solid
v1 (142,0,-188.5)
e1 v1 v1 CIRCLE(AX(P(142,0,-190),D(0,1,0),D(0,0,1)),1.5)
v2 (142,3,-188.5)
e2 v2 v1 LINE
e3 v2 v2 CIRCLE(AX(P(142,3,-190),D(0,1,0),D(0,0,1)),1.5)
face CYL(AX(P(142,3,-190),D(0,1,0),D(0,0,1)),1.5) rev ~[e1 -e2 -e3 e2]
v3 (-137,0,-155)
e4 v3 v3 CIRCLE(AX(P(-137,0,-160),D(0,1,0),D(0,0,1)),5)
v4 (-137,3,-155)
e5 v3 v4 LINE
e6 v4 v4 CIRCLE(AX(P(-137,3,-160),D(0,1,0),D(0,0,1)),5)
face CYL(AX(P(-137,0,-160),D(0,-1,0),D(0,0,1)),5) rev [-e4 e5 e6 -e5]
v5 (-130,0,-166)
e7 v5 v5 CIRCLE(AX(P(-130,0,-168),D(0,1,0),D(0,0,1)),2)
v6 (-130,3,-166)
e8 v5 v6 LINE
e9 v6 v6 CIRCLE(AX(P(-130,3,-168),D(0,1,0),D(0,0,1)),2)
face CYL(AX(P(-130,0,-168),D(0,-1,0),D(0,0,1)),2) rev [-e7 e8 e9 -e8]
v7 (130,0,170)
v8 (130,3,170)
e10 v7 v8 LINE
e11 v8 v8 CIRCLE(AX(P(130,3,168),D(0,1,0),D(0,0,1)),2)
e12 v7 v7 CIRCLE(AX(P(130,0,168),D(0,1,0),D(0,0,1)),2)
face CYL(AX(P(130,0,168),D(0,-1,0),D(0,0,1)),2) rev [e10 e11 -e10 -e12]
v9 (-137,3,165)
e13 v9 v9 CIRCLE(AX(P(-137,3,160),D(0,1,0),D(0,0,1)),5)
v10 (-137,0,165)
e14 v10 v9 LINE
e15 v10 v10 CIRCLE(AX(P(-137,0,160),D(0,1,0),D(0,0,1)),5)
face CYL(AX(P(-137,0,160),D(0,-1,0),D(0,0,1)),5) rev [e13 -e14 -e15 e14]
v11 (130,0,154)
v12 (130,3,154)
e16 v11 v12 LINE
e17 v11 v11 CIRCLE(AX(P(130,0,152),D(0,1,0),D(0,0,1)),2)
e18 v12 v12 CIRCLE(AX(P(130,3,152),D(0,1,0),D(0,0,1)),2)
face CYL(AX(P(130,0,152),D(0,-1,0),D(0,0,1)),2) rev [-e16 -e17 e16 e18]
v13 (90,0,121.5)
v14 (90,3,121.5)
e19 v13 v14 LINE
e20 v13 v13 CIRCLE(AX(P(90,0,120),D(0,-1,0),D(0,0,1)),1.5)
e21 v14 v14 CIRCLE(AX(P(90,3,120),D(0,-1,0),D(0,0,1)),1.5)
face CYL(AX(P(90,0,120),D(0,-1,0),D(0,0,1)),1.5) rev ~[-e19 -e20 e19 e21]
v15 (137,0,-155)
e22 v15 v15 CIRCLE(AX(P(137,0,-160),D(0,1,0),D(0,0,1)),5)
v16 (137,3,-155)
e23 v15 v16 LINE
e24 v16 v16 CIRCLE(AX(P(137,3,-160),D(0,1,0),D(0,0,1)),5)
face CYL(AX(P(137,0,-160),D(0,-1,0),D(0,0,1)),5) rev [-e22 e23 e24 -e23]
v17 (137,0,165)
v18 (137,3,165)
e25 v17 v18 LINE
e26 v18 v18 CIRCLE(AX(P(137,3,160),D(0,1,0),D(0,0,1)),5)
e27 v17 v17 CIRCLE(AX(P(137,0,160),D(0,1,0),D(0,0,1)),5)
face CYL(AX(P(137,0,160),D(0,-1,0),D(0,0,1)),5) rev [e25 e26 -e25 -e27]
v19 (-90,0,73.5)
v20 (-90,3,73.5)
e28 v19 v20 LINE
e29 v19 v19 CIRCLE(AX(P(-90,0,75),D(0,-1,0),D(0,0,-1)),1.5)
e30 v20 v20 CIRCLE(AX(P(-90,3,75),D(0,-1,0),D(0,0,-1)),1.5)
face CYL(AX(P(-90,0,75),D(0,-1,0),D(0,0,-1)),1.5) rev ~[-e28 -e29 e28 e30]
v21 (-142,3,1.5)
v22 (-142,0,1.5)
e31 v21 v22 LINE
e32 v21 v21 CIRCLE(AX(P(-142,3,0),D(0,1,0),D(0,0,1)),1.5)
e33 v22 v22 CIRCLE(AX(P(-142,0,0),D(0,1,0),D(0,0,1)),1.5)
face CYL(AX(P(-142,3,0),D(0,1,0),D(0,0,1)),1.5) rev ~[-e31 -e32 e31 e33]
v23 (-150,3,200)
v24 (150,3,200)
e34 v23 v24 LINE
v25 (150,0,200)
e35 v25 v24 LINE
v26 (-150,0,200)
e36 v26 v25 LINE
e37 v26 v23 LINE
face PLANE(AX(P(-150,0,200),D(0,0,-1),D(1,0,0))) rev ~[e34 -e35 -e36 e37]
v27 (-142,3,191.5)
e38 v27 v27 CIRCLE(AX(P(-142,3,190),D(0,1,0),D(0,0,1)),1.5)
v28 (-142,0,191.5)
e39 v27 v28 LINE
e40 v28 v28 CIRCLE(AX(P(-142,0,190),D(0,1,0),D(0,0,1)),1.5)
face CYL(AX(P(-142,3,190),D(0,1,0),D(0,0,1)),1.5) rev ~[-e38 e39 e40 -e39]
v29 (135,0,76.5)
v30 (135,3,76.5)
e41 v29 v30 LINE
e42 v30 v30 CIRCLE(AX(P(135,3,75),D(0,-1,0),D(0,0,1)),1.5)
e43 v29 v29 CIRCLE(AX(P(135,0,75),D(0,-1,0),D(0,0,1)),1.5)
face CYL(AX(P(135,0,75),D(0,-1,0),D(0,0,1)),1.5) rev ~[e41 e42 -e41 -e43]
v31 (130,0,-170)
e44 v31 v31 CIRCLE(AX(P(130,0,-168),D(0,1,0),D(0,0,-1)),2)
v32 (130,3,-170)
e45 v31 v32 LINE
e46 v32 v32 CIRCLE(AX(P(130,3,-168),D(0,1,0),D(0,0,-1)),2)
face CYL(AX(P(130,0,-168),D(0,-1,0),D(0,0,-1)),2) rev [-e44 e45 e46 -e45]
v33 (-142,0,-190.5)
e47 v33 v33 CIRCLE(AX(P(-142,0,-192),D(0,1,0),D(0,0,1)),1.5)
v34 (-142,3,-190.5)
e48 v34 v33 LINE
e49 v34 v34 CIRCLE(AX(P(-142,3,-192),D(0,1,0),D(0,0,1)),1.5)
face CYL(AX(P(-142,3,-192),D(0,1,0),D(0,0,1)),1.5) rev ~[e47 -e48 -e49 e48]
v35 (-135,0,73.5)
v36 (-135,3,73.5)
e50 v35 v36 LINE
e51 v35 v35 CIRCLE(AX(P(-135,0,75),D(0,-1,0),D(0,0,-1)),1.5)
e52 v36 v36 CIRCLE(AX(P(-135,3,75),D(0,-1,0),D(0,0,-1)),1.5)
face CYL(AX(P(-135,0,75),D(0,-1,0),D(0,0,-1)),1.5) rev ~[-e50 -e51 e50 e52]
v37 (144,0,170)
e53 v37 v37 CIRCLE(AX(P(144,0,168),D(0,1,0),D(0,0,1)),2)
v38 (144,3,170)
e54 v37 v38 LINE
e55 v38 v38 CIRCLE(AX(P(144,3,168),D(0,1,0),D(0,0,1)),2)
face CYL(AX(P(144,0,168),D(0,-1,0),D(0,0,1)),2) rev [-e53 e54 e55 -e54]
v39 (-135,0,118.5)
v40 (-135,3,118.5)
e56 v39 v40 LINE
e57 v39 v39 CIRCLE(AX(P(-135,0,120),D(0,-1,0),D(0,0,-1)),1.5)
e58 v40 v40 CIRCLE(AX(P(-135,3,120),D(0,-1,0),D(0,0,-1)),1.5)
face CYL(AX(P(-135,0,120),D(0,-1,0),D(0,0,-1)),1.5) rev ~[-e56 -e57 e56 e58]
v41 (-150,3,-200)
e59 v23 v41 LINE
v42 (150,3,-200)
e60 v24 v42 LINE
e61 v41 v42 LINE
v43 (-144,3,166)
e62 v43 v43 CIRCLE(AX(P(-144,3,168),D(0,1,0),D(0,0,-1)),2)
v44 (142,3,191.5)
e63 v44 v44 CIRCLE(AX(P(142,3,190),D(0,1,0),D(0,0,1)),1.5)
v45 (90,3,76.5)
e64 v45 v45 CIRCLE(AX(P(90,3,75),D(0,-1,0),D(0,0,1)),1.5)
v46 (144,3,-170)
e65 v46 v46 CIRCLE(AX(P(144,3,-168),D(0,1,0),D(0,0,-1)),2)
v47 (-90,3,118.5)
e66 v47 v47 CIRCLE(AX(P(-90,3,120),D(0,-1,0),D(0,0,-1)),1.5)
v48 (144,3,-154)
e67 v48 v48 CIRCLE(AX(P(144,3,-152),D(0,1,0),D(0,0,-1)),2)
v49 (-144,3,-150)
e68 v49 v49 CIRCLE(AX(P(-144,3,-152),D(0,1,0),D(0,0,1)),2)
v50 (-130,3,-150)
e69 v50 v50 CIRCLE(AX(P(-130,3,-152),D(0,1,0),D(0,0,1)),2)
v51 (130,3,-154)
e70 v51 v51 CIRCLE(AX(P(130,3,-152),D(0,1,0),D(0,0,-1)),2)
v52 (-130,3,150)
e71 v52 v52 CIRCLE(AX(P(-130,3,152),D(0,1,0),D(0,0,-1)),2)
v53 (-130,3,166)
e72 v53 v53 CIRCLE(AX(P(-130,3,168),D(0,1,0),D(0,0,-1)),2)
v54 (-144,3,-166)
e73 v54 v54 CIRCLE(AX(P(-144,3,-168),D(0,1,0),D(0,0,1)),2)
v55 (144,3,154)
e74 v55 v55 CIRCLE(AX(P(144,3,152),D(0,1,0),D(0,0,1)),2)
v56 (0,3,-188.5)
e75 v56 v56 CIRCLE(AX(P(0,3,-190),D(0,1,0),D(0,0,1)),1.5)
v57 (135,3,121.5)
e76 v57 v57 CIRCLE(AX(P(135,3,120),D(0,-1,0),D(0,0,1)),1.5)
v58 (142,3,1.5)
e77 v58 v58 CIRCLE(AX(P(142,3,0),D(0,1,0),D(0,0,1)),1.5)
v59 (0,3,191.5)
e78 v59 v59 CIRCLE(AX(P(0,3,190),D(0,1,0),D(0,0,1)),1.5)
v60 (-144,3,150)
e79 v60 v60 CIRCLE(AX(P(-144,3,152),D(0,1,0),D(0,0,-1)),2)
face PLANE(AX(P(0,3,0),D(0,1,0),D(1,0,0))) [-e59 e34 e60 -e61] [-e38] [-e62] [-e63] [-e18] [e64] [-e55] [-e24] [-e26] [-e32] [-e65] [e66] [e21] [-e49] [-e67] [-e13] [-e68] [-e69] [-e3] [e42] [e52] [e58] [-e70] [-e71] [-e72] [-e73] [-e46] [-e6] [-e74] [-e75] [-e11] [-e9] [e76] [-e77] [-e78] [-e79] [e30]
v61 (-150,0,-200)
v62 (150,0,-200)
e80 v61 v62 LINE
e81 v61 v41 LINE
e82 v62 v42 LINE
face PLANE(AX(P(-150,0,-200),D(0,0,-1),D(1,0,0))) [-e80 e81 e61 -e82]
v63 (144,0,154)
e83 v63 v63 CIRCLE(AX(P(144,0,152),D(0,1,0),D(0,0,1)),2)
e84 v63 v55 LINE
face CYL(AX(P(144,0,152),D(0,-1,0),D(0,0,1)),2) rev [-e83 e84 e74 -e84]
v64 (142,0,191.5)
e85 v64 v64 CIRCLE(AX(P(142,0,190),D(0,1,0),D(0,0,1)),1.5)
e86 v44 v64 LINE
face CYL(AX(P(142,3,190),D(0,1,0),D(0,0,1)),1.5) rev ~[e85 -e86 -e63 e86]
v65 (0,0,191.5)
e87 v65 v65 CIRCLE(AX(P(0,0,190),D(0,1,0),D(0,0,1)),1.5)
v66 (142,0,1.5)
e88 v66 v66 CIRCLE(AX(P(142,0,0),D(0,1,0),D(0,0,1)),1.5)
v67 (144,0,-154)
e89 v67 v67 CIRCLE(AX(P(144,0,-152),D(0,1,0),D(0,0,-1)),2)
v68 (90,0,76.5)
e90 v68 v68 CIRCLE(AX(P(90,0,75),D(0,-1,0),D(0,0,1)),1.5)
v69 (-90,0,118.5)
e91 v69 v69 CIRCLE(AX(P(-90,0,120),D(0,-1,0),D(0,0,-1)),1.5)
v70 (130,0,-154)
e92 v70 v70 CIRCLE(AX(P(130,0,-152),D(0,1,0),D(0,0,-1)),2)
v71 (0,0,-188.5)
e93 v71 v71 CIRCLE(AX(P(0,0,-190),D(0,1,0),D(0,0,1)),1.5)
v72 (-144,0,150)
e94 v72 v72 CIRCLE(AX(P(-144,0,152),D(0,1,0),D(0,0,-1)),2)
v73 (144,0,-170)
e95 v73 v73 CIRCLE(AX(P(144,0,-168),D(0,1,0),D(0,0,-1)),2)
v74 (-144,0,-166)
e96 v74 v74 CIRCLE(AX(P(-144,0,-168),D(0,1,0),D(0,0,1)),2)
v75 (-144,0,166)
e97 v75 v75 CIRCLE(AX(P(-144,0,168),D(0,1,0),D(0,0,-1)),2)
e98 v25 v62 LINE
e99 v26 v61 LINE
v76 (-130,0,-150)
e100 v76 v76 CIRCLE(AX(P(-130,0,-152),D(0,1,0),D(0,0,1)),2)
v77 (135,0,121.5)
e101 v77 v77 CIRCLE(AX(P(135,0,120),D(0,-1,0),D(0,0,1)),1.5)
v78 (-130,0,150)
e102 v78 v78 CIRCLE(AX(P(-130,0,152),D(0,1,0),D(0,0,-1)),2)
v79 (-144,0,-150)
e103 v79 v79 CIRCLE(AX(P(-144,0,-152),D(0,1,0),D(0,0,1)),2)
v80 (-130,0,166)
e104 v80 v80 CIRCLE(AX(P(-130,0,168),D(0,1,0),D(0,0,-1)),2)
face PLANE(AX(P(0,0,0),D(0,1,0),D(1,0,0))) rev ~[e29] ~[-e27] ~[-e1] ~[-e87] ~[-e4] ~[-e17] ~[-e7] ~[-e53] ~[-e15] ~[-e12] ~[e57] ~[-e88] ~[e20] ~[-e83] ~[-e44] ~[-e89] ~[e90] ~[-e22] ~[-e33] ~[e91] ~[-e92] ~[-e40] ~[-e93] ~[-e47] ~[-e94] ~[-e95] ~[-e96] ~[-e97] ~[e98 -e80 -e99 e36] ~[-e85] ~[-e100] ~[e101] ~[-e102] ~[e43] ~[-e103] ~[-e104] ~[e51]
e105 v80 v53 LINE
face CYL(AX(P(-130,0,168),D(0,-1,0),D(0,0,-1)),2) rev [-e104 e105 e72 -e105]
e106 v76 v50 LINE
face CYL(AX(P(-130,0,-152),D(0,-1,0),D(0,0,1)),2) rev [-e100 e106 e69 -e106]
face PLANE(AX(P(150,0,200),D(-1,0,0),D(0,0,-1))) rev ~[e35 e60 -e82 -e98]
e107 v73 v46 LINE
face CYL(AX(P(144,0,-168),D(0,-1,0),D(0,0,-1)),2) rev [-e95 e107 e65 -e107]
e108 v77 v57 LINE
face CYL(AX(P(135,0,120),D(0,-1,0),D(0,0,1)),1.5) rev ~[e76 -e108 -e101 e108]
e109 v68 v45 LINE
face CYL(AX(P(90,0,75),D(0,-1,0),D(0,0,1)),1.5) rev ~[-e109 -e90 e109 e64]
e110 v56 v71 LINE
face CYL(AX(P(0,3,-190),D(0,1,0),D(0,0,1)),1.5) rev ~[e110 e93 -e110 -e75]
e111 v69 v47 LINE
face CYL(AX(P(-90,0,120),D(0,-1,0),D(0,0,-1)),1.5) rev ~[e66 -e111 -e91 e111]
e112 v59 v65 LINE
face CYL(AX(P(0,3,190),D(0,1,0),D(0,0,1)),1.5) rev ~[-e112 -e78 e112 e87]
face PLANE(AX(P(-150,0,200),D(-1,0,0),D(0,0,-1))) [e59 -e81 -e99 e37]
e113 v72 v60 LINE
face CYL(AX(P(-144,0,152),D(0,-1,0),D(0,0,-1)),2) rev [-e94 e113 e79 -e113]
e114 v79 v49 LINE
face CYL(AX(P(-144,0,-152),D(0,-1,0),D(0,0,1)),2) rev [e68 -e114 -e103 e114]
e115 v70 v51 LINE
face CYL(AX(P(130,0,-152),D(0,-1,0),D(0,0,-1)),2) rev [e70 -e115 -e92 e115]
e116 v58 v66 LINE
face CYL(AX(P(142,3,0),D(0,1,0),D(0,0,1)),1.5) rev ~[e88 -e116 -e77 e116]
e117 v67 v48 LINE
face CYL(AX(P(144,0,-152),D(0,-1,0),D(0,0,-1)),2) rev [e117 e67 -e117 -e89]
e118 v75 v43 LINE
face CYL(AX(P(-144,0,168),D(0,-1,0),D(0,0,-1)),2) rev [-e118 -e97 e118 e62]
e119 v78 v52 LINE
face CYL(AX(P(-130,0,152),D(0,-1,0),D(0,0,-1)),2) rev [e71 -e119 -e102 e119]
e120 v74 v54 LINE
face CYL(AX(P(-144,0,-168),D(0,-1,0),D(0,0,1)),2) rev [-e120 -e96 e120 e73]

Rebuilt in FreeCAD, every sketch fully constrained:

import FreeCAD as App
import Part
import Sketcher
from FreeCAD import Vector
Q = App.Units.Quantity

doc = App.newDocument("Part")
body = doc.addObject("PartDesign::Body", "Body")

sketch1 = body.newObject("Sketcher::SketchObject", "Sketch")
sketch1.AttachmentSupport = (doc.getObject("XZ_Plane"), [""])
sketch1.MapMode = "FlatFace"
sketch1.addGeometry([
    Part.LineSegment(Vector(-150, -200, 0), Vector(-150, 200, 0)),
    Part.LineSegment(Vector(-150, 200, 0), Vector(150, 200, 0)),
    Part.LineSegment(Vector(150, 200, 0), Vector(150, -200, 0)),
    Part.LineSegment(Vector(150, -200, 0), Vector(-150, -200, 0)),
    Part.Circle(Vector(-144, 168, 0), Vector(0, 0, 1), 2),
    Part.Circle(Vector(-137, 160, 0), Vector(0, 0, 1), 5),
    Part.Circle(Vector(-130, 168, 0), Vector(0, 0, 1), 2),
    Part.Circle(Vector(-144, 152, 0), Vector(0, 0, 1), 2),
    Part.Circle(Vector(-130, 152, 0), Vector(0, 0, 1), 2),
    Part.Circle(Vector(130, 168, 0), Vector(0, 0, 1), 2),
    Part.Circle(Vector(144, 168, 0), Vector(0, 0, 1), 2),
    Part.Circle(Vector(137, 160, 0), Vector(0, 0, 1), 5),
    Part.Circle(Vector(130, 152, 0), Vector(0, 0, 1), 2),
    Part.Circle(Vector(144, 152, 0), Vector(0, 0, 1), 2),
    Part.Circle(Vector(-144, -152, 0), Vector(0, 0, 1), 2),
    Part.Circle(Vector(-130, -152, 0), Vector(0, 0, 1), 2),
    Part.Circle(Vector(-137, -160, 0), Vector(0, 0, 1), 5),
    Part.Circle(Vector(-144, -168, 0), Vector(0, 0, 1), 2),
    Part.Circle(Vector(-130, -168, 0), Vector(0, 0, 1), 2),
    Part.Circle(Vector(130, -152, 0), Vector(0, 0, 1), 2),
    Part.Circle(Vector(144, -152, 0), Vector(0, 0, 1), 2),
    Part.Circle(Vector(130, -168, 0), Vector(0, 0, 1), 2),
    Part.Circle(Vector(137, -160, 0), Vector(0, 0, 1), 5),
    Part.Circle(Vector(144, -168, 0), Vector(0, 0, 1), 2),
], False)
sketch1.addConstraint([
    Sketcher.Constraint("Coincident", 0, 2, 1, 1),
    Sketcher.Constraint("Coincident", 1, 2, 2, 1),
    Sketcher.Constraint("Coincident", 2, 2, 3, 1),
    Sketcher.Constraint("Coincident", 3, 2, 0, 1),
    Sketcher.Constraint("Vertical", 0),
    Sketcher.Constraint("Horizontal", 1),
    Sketcher.Constraint("Vertical", 2),
    Sketcher.Constraint("Horizontal", 3),
    Sketcher.Constraint("Equal", 4, 6),
    Sketcher.Constraint("Equal", 6, 7),
    Sketcher.Constraint("Equal", 7, 8),
    Sketcher.Constraint("Equal", 8, 9),
    Sketcher.Constraint("Equal", 9, 10),
    Sketcher.Constraint("Equal", 5, 11),
    Sketcher.Constraint("Equal", 10, 12),
    Sketcher.Constraint("Equal", 12, 13),
    Sketcher.Constraint("Equal", 13, 14),
    Sketcher.Constraint("Equal", 14, 15),
    Sketcher.Constraint("Equal", 11, 16),
    Sketcher.Constraint("Equal", 15, 17),
    Sketcher.Constraint("Equal", 17, 18),
    Sketcher.Constraint("Equal", 18, 19),
    Sketcher.Constraint("Equal", 19, 20),
    Sketcher.Constraint("Equal", 20, 21),
    Sketcher.Constraint("Equal", 16, 22),
    Sketcher.Constraint("Equal", 21, 23),
    Sketcher.Constraint("Symmetric", 13, 3, 14, 3, -1, 1),
    Sketcher.Constraint("Symmetric", 12, 3, 15, 3, -1, 1),
    Sketcher.Constraint("Symmetric", 11, 3, 16, 3, -1, 1),
    Sketcher.Constraint("Symmetric", 10, 3, 17, 3, -1, 1),
    Sketcher.Constraint("Symmetric", 9, 3, 18, 3, -1, 1),
    Sketcher.Constraint("Symmetric", 8, 3, 19, 3, -1, 1),
    Sketcher.Constraint("Symmetric", 7, 3, 20, 3, -1, 1),
    Sketcher.Constraint("Symmetric", 6, 3, 21, 3, -1, 1),
    Sketcher.Constraint("Symmetric", 5, 3, 22, 3, -1, 1),
    Sketcher.Constraint("Symmetric", 4, 3, 23, 3, -1, 1),
    Sketcher.Constraint("Symmetric", 0, 2, 2, 2, -1, 1),
    Sketcher.Constraint("Symmetric", 6, 3, 9, 3, -2),
    Sketcher.Constraint("Symmetric", 4, 3, 10, 3, -2),
    Sketcher.Constraint("Symmetric", 5, 3, 11, 3, -2),
    Sketcher.Constraint("Symmetric", 8, 3, 12, 3, -2),
    Sketcher.Constraint("Symmetric", 7, 3, 13, 3, -2),
    Sketcher.Constraint("Horizontal", 4, 3, 6, 3),
    Sketcher.Constraint("Horizontal", 7, 3, 8, 3),
    Sketcher.Constraint("Vertical", 4, 3, 7, 3),
    Sketcher.Constraint("Vertical", 6, 3, 8, 3),
    Sketcher.Constraint("Diameter", 4, Q("4 mm")),
    Sketcher.Constraint("Diameter", 5, Q("10 mm")),
    Sketcher.Constraint("DistanceX", 1, 1, 1, 2, Q("300 mm")),
    Sketcher.Constraint("DistanceY", 0, 1, 0, 2, Q("400 mm")),
    Sketcher.Constraint("DistanceX", 4, 3, -1, 1, Q("144 mm")),
    Sketcher.Constraint("DistanceY", -1, 1, 4, 3, Q("168 mm")),
    Sketcher.Constraint("DistanceX", 5, 3, -1, 1, Q("137 mm")),
    Sketcher.Constraint("DistanceY", -1, 1, 5, 3, Q("160 mm")),
    Sketcher.Constraint("DistanceX", 6, 3, -1, 1, Q("130 mm")),
    Sketcher.Constraint("DistanceY", -1, 1, 7, 3, Q("152 mm")),
])
pad1 = body.newObject("PartDesign::Pad", "Pad")
pad1.Profile = sketch1
pad1.Length = 3
pad1.Reversed = True

sketch2 = body.newObject("Sketcher::SketchObject", "Sketch001")
sketch2.AttachmentSupport = (doc.getObject("XZ_Plane"), [""])
sketch2.MapMode = "FlatFace"
sketch2.AttachmentOffset = App.Placement(Vector(0, 0, -3), App.Rotation())
sketch2.addGeometry([
    Part.Circle(Vector(-142, 190, 0), Vector(0, 0, 1), 1.5),
    Part.Circle(Vector(142, 190, 0), Vector(0, 0, 1), 1.5),
    Part.Circle(Vector(142, 0, 0), Vector(0, 0, 1), 1.5),
    Part.Circle(Vector(-142, 0, 0), Vector(0, 0, 1), 1.5),
    Part.Circle(Vector(-142, -192, 0), Vector(0, 0, 1), 1.5),
    Part.Circle(Vector(142, -190, 0), Vector(0, 0, 1), 1.5),
    Part.Circle(Vector(0, -190, 0), Vector(0, 0, 1), 1.5),
    Part.Circle(Vector(0, 190, 0), Vector(0, 0, 1), 1.5),
], False)
sketch2.addConstraint([
    Sketcher.Constraint("Equal", 0, 1),
    Sketcher.Constraint("Equal", 1, 2),
    Sketcher.Constraint("Equal", 2, 3),
    Sketcher.Constraint("Equal", 3, 4),
    Sketcher.Constraint("Equal", 4, 5),
    Sketcher.Constraint("Equal", 5, 6),
    Sketcher.Constraint("Equal", 6, 7),
    Sketcher.Constraint("Symmetric", 2, 3, 3, 3, -1, 1),
    Sketcher.Constraint("Symmetric", 0, 3, 5, 3, -1, 1),
    Sketcher.Constraint("Symmetric", 6, 3, 7, 3, -1, 1),
    Sketcher.Constraint("Symmetric", 0, 3, 1, 3, -2),
    Sketcher.Constraint("PointOnObject", 2, 3, -1),
    Sketcher.Constraint("PointOnObject", 6, 3, -2),
    Sketcher.Constraint("Horizontal", 5, 3, 6, 3),
    Sketcher.Constraint("Vertical", 1, 3, 2, 3),
    Sketcher.Constraint("Vertical", 3, 3, 4, 3),
    Sketcher.Constraint("Diameter", 0, Q("3 mm")),
    Sketcher.Constraint("DistanceX", 0, 3, -1, 1, Q("142 mm")),
    Sketcher.Constraint("DistanceY", -1, 1, 0, 3, Q("190 mm")),
    Sketcher.Constraint("DistanceY", 4, 3, -1, 1, Q("192 mm")),
])
pocket1 = body.newObject("PartDesign::Pocket", "Pocket")
pocket1.Profile = sketch2
pocket1.Type = "ThroughAll"
pocket1.Reversed = True

sketch3 = body.newObject("Sketcher::SketchObject", "Sketch002")
sketch3.AttachmentSupport = (doc.getObject("XZ_Plane"), [""])
sketch3.MapMode = "FlatFace"
sketch3.addGeometry([
    Part.Circle(Vector(-135, 120, 0), Vector(0, 0, 1), 1.5),
    Part.Circle(Vector(-90, 120, 0), Vector(0, 0, 1), 1.5),
    Part.Circle(Vector(-135, 75, 0), Vector(0, 0, 1), 1.5),
    Part.Circle(Vector(-90, 75, 0), Vector(0, 0, 1), 1.5),
    Part.Circle(Vector(90, 75, 0), Vector(0, 0, 1), 1.5),
    Part.Circle(Vector(135, 75, 0), Vector(0, 0, 1), 1.5),
    Part.Circle(Vector(90, 120, 0), Vector(0, 0, 1), 1.5),
    Part.Circle(Vector(135, 120, 0), Vector(0, 0, 1), 1.5),
], False)
sketch3.addConstraint([
    Sketcher.Constraint("Equal", 0, 1),
    Sketcher.Constraint("Equal", 1, 2),
    Sketcher.Constraint("Equal", 2, 3),
    Sketcher.Constraint("Equal", 3, 4),
    Sketcher.Constraint("Equal", 4, 5),
    Sketcher.Constraint("Equal", 5, 6),
    Sketcher.Constraint("Equal", 6, 7),
    Sketcher.Constraint("Symmetric", 3, 3, 4, 3, -2),
    Sketcher.Constraint("Symmetric", 2, 3, 5, 3, -2),
    Sketcher.Constraint("Symmetric", 1, 3, 6, 3, -2),
    Sketcher.Constraint("Symmetric", 0, 3, 7, 3, -2),
    Sketcher.Constraint("Horizontal", 0, 3, 1, 3),
    Sketcher.Constraint("Horizontal", 2, 3, 3, 3),
    Sketcher.Constraint("Vertical", 0, 3, 2, 3),
    Sketcher.Constraint("Vertical", 1, 3, 3, 3),
    Sketcher.Constraint("Diameter", 0, Q("3 mm")),
    Sketcher.Constraint("DistanceX", 0, 3, -1, 1, Q("135 mm")),
    Sketcher.Constraint("DistanceY", -1, 1, 0, 3, Q("120 mm")),
    Sketcher.Constraint("DistanceX", 1, 3, -1, 1, Q("90 mm")),
    Sketcher.Constraint("DistanceY", -1, 1, 2, 3, Q("75 mm")),
])
pocket2 = body.newObject("PartDesign::Pocket", "Pocket001")
pocket2.Profile = sketch3
pocket2.Length = 10

doc.recompute()
